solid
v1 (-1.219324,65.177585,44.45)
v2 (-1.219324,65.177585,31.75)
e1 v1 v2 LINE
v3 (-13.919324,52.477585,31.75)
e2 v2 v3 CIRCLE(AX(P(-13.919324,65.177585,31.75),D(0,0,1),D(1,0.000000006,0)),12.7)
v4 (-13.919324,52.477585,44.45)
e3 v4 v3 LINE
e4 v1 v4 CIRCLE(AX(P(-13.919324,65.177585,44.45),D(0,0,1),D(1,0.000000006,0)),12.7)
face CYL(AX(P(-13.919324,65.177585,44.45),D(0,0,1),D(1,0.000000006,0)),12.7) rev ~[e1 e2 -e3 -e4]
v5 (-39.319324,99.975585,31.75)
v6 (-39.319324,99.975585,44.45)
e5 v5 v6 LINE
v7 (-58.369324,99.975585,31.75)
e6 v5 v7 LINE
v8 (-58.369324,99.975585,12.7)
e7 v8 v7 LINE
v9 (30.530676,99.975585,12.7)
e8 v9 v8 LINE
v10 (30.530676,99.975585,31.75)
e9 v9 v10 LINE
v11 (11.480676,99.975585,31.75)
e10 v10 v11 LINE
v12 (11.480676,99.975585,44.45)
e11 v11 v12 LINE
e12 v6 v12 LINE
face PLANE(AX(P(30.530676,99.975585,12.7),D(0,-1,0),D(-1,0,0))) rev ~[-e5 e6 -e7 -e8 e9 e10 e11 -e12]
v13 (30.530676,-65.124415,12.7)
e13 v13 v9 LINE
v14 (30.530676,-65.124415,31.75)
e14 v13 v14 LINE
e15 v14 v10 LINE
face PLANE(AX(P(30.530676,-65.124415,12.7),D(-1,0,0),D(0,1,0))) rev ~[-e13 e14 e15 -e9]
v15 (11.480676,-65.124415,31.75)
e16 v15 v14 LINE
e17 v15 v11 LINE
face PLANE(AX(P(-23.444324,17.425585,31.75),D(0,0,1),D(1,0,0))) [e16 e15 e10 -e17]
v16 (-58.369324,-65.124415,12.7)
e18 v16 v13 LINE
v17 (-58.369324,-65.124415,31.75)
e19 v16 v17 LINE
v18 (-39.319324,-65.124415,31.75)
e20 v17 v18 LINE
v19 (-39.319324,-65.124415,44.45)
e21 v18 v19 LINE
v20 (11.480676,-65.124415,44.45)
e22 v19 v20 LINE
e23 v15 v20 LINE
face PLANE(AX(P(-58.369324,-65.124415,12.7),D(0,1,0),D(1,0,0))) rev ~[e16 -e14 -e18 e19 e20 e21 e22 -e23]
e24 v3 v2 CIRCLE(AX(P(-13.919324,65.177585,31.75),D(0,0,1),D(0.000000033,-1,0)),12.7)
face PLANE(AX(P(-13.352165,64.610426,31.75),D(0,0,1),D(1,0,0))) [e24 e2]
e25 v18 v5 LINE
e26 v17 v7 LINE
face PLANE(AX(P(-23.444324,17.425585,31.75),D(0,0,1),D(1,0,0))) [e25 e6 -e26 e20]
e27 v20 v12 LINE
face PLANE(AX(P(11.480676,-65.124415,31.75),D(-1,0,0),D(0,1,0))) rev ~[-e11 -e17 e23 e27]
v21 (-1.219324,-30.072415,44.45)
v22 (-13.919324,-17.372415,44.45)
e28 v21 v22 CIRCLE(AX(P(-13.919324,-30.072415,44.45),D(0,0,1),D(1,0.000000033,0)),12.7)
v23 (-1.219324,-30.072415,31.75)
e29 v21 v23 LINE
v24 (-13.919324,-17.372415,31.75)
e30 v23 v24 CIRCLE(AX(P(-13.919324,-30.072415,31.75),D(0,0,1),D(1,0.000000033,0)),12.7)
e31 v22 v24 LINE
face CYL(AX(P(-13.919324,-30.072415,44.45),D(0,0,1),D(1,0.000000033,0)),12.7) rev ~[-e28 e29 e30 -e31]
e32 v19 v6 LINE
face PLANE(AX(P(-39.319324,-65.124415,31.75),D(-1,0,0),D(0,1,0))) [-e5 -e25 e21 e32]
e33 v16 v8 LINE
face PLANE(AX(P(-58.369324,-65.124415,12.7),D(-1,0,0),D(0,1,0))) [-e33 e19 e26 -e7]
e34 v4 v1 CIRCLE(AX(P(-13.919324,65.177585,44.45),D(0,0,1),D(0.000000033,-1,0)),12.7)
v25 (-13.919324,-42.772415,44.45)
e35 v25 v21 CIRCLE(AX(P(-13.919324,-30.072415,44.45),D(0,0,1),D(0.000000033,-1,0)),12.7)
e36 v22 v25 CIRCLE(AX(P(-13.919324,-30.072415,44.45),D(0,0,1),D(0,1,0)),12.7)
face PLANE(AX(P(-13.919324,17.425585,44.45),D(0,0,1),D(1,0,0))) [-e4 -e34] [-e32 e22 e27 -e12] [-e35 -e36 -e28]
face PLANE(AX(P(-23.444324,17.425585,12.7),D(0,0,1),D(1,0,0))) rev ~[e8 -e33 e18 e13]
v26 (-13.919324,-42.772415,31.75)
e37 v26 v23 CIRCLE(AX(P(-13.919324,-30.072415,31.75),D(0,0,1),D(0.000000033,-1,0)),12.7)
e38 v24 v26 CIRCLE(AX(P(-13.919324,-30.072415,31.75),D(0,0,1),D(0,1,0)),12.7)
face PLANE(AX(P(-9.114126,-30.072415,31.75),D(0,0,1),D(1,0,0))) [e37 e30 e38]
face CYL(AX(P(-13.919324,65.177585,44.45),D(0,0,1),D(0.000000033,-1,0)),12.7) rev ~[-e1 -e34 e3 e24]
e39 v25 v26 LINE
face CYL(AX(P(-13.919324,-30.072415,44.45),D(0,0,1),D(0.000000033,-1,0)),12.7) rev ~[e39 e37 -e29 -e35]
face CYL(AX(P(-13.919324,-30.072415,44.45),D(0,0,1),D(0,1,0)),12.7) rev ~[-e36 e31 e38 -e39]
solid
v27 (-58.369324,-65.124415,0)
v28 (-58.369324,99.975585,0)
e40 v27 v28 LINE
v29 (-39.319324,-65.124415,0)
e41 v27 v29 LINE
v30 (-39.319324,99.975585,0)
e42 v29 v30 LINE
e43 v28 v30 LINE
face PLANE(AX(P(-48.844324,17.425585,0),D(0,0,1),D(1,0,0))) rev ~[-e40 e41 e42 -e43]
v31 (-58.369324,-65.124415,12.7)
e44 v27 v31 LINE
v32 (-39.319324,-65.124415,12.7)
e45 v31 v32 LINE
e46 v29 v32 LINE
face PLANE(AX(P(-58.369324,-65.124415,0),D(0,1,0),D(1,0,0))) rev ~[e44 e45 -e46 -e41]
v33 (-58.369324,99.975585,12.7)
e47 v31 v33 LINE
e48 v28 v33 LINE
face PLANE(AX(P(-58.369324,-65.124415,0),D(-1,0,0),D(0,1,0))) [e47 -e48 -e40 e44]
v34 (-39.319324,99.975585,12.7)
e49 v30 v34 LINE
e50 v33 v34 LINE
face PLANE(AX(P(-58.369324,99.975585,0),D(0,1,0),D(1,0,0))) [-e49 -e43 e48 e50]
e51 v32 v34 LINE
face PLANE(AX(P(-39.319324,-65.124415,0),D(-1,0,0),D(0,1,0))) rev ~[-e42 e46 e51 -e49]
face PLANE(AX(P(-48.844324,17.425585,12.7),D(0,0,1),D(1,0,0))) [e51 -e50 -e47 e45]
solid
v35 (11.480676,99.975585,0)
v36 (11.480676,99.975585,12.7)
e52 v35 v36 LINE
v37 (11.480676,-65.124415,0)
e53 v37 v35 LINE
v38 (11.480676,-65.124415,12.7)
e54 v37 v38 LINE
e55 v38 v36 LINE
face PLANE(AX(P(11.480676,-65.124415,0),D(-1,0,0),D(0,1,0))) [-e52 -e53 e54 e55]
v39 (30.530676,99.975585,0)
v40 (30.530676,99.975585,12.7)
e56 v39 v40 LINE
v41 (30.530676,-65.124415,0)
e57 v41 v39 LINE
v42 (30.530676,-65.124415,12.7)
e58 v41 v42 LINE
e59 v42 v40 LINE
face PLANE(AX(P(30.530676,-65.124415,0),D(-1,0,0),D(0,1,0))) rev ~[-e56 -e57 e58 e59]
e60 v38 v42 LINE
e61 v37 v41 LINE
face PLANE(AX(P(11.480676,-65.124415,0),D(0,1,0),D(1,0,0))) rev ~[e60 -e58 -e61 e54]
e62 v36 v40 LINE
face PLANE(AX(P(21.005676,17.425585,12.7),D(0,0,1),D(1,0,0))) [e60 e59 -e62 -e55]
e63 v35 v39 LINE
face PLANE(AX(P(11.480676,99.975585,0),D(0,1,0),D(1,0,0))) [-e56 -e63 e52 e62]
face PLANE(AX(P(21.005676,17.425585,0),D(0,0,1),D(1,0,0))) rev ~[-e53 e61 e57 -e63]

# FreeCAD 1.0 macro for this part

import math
import FreeCAD as App
import Part
import Sketcher
from FreeCAD import Vector
Q = App.Units.Quantity

doc = App.newDocument("Part")
body = doc.addObject("PartDesign::Body", "Body")
body.AllowCompound = True

# Sketch on XY plane
sketch1 = body.newObject("Sketcher::SketchObject", "Sketch")
sketch1.AttachmentSupport = (doc.getObject("XY_Plane"), [""])
sketch1.MapMode = "FlatFace"
sketch1.addGeometry([
    Part.LineSegment(Vector(-58.369324, 99.975585, 0), Vector(-58.369324, -65.124415, 0)),  # 0
    Part.LineSegment(Vector(-58.369324, -65.124415, 0), Vector(-39.319324, -65.124415, 0)),  # 1
    Part.LineSegment(Vector(-39.319324, -65.124415, 0), Vector(-39.319324, 99.975585, 0)),  # 2
    Part.LineSegment(Vector(-39.319324, 99.975585, 0), Vector(-58.369324, 99.975585, 0)),  # 3
    Part.LineSegment(Vector(11.480676, 99.975585, 0), Vector(11.480676, -65.124415, 0)),  # 4
    Part.LineSegment(Vector(11.480676, -65.124415, 0), Vector(30.530676, -65.124415, 0)),  # 5
    Part.LineSegment(Vector(30.530676, -65.124415, 0), Vector(30.530676, 99.975585, 0)),  # 6
    Part.LineSegment(Vector(30.530676, 99.975585, 0), Vector(11.480676, 99.975585, 0)),  # 7
], False)
sketch1.addConstraint([
    Sketcher.Constraint("Coincident", 0, 2, 1, 1),
    Sketcher.Constraint("Coincident", 1, 2, 2, 1),
    Sketcher.Constraint("Coincident", 2, 2, 3, 1),
    Sketcher.Constraint("Coincident", 3, 2, 0, 1),
    Sketcher.Constraint("Coincident", 4, 2, 5, 1),
    Sketcher.Constraint("Coincident", 5, 2, 6, 1),
    Sketcher.Constraint("Coincident", 6, 2, 7, 1),
    Sketcher.Constraint("Coincident", 7, 2, 4, 1),
    Sketcher.Constraint("Vertical", 0),
    Sketcher.Constraint("Horizontal", 1),
    Sketcher.Constraint("Vertical", 2),
    Sketcher.Constraint("Horizontal", 3),
    Sketcher.Constraint("Vertical", 4),
    Sketcher.Constraint("Horizontal", 5),
    Sketcher.Constraint("Vertical", 6),
    Sketcher.Constraint("Horizontal", 7),
    Sketcher.Constraint("Horizontal", 1, 2, 4, 2),
    Sketcher.Constraint("Horizontal", 3, 2, 6, 2),
    Sketcher.Constraint("Equal", 3, 5),
    Sketcher.Constraint("DistanceY", 0, 2, 0, 1, Q("6.5 in")),
    Sketcher.Constraint("DistanceX", 1, 2, 4, 2, Q("2 in")),
    Sketcher.Constraint("DistanceX", 1, 1, 1, 2, Q("0.75 in")),
    Sketcher.Constraint("DistanceX", 0, 2, -1, 1, 58.369324),
    Sketcher.Constraint("DistanceY", 0, 2, -1, 1, 65.124415),
])
pad1 = body.newObject("PartDesign::Pad", "Pad")
pad1.Profile = sketch1
pad1.Length = Q("0.5 in")
body2 = doc.addObject("PartDesign::Body", "Body001")

# Sketch on XY plane
sketch2 = body2.newObject("Sketcher::SketchObject", "Sketch001")
sketch2.AttachmentSupport = (doc.getObject("XY_Plane001"), [""])
sketch2.MapMode = "FlatFace"
sketch2.AttachmentOffset = App.Placement(Vector(0, 0, 0.5 * 25.4), App.Rotation())
sketch2.addGeometry([
    Part.LineSegment(Vector(-58.369324, 99.975585, 0), Vector(-58.369324, -65.124415, 0)),
    Part.LineSegment(Vector(-58.369324, -65.124415, 0), Vector(30.530676, -65.124415, 0)),
    Part.LineSegment(Vector(30.530676, -65.124415, 0), Vector(30.530676, 99.975585, 0)),
    Part.LineSegment(Vector(30.530676, 99.975585, 0), Vector(-58.369324, 99.975585, 0)),
], False)
sketch2.addConstraint([
    Sketcher.Constraint("Coincident", 0, 2, 1, 1),
    Sketcher.Constraint("Coincident", 1, 2, 2, 1),
    Sketcher.Constraint("Coincident", 2, 2, 3, 1),
    Sketcher.Constraint("Coincident", 3, 2, 0, 1),
    Sketcher.Constraint("Vertical", 0),
    Sketcher.Constraint("Horizontal", 1),
    Sketcher.Constraint("Vertical", 2),
    Sketcher.Constraint("Horizontal", 3),
    Sketcher.Constraint("DistanceX", 1, 1, 1, 2, Q("3.5 in")),
    Sketcher.Constraint("DistanceY", 0, 2, 0, 1, Q("6.5 in")),
    Sketcher.Constraint("DistanceX", 0, 2, -1, 1, 58.369324),
    Sketcher.Constraint("DistanceY", 0, 2, -1, 1, 65.124415),
])
pad2 = body2.newObject("PartDesign::Pad", "Pad001")
pad2.Profile = sketch2
pad2.Length = Q("0.75 in")

# Sketch on XY plane
sketch3 = body2.newObject("Sketcher::SketchObject", "Sketch002")
sketch3.AttachmentSupport = (doc.getObject("XY_Plane001"), [""])
sketch3.MapMode = "FlatFace"
sketch3.AttachmentOffset = App.Placement(Vector(0, 0, 1.25 * 25.4), App.Rotation())
sketch3.addGeometry([
    Part.LineSegment(Vector(-39.319324, 99.975585, 0), Vector(-39.319324, -65.124415, 0)),
    Part.LineSegment(Vector(-39.319324, -65.124415, 0), Vector(11.480676, -65.124415, 0)),
    Part.LineSegment(Vector(11.480676, -65.124415, 0), Vector(11.480676, 99.975585, 0)),
    Part.LineSegment(Vector(11.480676, 99.975585, 0), Vector(-39.319324, 99.975585, 0)),
], False)
sketch3.addConstraint([
    Sketcher.Constraint("Coincident", 0, 2, 1, 1),
    Sketcher.Constraint("Coincident", 1, 2, 2, 1),
    Sketcher.Constraint("Coincident", 2, 2, 3, 1),
    Sketcher.Constraint("Coincident", 3, 2, 0, 1),
    Sketcher.Constraint("Vertical", 0),
    Sketcher.Constraint("Horizontal", 1),
    Sketcher.Constraint("Vertical", 2),
    Sketcher.Constraint("Horizontal", 3),
    Sketcher.Constraint("DistanceX", 1, 1, 1, 2, Q("2 in")),
    Sketcher.Constraint("DistanceY", 0, 2, 0, 1, Q("6.5 in")),
    Sketcher.Constraint("DistanceX", 0, 2, -1, 1, 39.319324),
    Sketcher.Constraint("DistanceY", 0, 2, -1, 1, 65.124415),
])
pad3 = body2.newObject("PartDesign::Pad", "Pad002")
pad3.Profile = sketch3
pad3.Length = Q("0.5 in")

# Sketch on XY plane
sketch4 = body2.newObject("Sketcher::SketchObject", "Sketch003")
sketch4.AttachmentSupport = (doc.getObject("XY_Plane001"), [""])
sketch4.MapMode = "FlatFace"
sketch4.AttachmentOffset = App.Placement(Vector(0, 0, 1.75 * 25.4), App.Rotation())
sketch4.addGeometry([
    Part.ArcOfCircle(Part.Circle(Vector(-13.919324, -30.072415, 0), Vector(0, 0, 1), 12.7), math.radians(-89.999998), math.radians(-0.000002)),  # 0
    Part.ArcOfCircle(Part.Circle(Vector(-13.919324, -30.072415, 0), Vector(0, 0, 1), 12.7), math.radians(0.000002), math.radians(89.999998)),  # 1
    Part.ArcOfCircle(Part.Circle(Vector(-13.919324, -30.072415, 0), Vector(0, 0, 1), 12.7), math.radians(90), math.radians(270)),  # 2
    Part.ArcOfCircle(Part.Circle(Vector(-13.919324, 65.177585, 0), Vector(0, 0, 1), 12.7), math.radians(0), math.radians(270)),  # 3
    Part.ArcOfCircle(Part.Circle(Vector(-13.919324, 65.177585, 0), Vector(0, 0, 1), 12.7), math.radians(-89.999998), math.radians(-0.000002)),  # 4
], False)
sketch4.addConstraint([
    Sketcher.Constraint("Tangent", 0, 2, 1, 1),
    Sketcher.Constraint("Tangent", 1, 2, 2, 1),
    Sketcher.Constraint("Tangent", 2, 2, 0, 1),
    Sketcher.Constraint("Tangent", 3, 1, 4, 2),
    Sketcher.Constraint("Coincident", 4, 1, 3, 2),
    Sketcher.Constraint("Equal", 2, 3),
    Sketcher.Constraint("Horizontal", 2, 3, 0, 2),
    Sketcher.Constraint("Horizontal", 4, 3, 3, 1),
    Sketcher.Constraint("Vertical", 2, 3, 3, 3),
    Sketcher.Constraint("Vertical", 4, 3, 1, 2),
    Sketcher.Constraint("Vertical", 1, 2, 2, 2),
    Sketcher.Constraint("Vertical", 2, 2, 4, 1),
    Sketcher.Constraint("Radius", 0, Q("0.5 in")),
    Sketcher.Constraint("DistanceY", 0, 3, 3, 3, Q("3.75 in")),
    Sketcher.Constraint("DistanceX", 0, 3, -1, 1, 13.919324),
    Sketcher.Constraint("DistanceY", 0, 3, -1, 1, 30.072415),
])
pocket1 = body2.newObject("PartDesign::Pocket", "Pocket")
pocket1.Profile = sketch4
pocket1.Length = Q("0.5 in")

doc.recompute()
